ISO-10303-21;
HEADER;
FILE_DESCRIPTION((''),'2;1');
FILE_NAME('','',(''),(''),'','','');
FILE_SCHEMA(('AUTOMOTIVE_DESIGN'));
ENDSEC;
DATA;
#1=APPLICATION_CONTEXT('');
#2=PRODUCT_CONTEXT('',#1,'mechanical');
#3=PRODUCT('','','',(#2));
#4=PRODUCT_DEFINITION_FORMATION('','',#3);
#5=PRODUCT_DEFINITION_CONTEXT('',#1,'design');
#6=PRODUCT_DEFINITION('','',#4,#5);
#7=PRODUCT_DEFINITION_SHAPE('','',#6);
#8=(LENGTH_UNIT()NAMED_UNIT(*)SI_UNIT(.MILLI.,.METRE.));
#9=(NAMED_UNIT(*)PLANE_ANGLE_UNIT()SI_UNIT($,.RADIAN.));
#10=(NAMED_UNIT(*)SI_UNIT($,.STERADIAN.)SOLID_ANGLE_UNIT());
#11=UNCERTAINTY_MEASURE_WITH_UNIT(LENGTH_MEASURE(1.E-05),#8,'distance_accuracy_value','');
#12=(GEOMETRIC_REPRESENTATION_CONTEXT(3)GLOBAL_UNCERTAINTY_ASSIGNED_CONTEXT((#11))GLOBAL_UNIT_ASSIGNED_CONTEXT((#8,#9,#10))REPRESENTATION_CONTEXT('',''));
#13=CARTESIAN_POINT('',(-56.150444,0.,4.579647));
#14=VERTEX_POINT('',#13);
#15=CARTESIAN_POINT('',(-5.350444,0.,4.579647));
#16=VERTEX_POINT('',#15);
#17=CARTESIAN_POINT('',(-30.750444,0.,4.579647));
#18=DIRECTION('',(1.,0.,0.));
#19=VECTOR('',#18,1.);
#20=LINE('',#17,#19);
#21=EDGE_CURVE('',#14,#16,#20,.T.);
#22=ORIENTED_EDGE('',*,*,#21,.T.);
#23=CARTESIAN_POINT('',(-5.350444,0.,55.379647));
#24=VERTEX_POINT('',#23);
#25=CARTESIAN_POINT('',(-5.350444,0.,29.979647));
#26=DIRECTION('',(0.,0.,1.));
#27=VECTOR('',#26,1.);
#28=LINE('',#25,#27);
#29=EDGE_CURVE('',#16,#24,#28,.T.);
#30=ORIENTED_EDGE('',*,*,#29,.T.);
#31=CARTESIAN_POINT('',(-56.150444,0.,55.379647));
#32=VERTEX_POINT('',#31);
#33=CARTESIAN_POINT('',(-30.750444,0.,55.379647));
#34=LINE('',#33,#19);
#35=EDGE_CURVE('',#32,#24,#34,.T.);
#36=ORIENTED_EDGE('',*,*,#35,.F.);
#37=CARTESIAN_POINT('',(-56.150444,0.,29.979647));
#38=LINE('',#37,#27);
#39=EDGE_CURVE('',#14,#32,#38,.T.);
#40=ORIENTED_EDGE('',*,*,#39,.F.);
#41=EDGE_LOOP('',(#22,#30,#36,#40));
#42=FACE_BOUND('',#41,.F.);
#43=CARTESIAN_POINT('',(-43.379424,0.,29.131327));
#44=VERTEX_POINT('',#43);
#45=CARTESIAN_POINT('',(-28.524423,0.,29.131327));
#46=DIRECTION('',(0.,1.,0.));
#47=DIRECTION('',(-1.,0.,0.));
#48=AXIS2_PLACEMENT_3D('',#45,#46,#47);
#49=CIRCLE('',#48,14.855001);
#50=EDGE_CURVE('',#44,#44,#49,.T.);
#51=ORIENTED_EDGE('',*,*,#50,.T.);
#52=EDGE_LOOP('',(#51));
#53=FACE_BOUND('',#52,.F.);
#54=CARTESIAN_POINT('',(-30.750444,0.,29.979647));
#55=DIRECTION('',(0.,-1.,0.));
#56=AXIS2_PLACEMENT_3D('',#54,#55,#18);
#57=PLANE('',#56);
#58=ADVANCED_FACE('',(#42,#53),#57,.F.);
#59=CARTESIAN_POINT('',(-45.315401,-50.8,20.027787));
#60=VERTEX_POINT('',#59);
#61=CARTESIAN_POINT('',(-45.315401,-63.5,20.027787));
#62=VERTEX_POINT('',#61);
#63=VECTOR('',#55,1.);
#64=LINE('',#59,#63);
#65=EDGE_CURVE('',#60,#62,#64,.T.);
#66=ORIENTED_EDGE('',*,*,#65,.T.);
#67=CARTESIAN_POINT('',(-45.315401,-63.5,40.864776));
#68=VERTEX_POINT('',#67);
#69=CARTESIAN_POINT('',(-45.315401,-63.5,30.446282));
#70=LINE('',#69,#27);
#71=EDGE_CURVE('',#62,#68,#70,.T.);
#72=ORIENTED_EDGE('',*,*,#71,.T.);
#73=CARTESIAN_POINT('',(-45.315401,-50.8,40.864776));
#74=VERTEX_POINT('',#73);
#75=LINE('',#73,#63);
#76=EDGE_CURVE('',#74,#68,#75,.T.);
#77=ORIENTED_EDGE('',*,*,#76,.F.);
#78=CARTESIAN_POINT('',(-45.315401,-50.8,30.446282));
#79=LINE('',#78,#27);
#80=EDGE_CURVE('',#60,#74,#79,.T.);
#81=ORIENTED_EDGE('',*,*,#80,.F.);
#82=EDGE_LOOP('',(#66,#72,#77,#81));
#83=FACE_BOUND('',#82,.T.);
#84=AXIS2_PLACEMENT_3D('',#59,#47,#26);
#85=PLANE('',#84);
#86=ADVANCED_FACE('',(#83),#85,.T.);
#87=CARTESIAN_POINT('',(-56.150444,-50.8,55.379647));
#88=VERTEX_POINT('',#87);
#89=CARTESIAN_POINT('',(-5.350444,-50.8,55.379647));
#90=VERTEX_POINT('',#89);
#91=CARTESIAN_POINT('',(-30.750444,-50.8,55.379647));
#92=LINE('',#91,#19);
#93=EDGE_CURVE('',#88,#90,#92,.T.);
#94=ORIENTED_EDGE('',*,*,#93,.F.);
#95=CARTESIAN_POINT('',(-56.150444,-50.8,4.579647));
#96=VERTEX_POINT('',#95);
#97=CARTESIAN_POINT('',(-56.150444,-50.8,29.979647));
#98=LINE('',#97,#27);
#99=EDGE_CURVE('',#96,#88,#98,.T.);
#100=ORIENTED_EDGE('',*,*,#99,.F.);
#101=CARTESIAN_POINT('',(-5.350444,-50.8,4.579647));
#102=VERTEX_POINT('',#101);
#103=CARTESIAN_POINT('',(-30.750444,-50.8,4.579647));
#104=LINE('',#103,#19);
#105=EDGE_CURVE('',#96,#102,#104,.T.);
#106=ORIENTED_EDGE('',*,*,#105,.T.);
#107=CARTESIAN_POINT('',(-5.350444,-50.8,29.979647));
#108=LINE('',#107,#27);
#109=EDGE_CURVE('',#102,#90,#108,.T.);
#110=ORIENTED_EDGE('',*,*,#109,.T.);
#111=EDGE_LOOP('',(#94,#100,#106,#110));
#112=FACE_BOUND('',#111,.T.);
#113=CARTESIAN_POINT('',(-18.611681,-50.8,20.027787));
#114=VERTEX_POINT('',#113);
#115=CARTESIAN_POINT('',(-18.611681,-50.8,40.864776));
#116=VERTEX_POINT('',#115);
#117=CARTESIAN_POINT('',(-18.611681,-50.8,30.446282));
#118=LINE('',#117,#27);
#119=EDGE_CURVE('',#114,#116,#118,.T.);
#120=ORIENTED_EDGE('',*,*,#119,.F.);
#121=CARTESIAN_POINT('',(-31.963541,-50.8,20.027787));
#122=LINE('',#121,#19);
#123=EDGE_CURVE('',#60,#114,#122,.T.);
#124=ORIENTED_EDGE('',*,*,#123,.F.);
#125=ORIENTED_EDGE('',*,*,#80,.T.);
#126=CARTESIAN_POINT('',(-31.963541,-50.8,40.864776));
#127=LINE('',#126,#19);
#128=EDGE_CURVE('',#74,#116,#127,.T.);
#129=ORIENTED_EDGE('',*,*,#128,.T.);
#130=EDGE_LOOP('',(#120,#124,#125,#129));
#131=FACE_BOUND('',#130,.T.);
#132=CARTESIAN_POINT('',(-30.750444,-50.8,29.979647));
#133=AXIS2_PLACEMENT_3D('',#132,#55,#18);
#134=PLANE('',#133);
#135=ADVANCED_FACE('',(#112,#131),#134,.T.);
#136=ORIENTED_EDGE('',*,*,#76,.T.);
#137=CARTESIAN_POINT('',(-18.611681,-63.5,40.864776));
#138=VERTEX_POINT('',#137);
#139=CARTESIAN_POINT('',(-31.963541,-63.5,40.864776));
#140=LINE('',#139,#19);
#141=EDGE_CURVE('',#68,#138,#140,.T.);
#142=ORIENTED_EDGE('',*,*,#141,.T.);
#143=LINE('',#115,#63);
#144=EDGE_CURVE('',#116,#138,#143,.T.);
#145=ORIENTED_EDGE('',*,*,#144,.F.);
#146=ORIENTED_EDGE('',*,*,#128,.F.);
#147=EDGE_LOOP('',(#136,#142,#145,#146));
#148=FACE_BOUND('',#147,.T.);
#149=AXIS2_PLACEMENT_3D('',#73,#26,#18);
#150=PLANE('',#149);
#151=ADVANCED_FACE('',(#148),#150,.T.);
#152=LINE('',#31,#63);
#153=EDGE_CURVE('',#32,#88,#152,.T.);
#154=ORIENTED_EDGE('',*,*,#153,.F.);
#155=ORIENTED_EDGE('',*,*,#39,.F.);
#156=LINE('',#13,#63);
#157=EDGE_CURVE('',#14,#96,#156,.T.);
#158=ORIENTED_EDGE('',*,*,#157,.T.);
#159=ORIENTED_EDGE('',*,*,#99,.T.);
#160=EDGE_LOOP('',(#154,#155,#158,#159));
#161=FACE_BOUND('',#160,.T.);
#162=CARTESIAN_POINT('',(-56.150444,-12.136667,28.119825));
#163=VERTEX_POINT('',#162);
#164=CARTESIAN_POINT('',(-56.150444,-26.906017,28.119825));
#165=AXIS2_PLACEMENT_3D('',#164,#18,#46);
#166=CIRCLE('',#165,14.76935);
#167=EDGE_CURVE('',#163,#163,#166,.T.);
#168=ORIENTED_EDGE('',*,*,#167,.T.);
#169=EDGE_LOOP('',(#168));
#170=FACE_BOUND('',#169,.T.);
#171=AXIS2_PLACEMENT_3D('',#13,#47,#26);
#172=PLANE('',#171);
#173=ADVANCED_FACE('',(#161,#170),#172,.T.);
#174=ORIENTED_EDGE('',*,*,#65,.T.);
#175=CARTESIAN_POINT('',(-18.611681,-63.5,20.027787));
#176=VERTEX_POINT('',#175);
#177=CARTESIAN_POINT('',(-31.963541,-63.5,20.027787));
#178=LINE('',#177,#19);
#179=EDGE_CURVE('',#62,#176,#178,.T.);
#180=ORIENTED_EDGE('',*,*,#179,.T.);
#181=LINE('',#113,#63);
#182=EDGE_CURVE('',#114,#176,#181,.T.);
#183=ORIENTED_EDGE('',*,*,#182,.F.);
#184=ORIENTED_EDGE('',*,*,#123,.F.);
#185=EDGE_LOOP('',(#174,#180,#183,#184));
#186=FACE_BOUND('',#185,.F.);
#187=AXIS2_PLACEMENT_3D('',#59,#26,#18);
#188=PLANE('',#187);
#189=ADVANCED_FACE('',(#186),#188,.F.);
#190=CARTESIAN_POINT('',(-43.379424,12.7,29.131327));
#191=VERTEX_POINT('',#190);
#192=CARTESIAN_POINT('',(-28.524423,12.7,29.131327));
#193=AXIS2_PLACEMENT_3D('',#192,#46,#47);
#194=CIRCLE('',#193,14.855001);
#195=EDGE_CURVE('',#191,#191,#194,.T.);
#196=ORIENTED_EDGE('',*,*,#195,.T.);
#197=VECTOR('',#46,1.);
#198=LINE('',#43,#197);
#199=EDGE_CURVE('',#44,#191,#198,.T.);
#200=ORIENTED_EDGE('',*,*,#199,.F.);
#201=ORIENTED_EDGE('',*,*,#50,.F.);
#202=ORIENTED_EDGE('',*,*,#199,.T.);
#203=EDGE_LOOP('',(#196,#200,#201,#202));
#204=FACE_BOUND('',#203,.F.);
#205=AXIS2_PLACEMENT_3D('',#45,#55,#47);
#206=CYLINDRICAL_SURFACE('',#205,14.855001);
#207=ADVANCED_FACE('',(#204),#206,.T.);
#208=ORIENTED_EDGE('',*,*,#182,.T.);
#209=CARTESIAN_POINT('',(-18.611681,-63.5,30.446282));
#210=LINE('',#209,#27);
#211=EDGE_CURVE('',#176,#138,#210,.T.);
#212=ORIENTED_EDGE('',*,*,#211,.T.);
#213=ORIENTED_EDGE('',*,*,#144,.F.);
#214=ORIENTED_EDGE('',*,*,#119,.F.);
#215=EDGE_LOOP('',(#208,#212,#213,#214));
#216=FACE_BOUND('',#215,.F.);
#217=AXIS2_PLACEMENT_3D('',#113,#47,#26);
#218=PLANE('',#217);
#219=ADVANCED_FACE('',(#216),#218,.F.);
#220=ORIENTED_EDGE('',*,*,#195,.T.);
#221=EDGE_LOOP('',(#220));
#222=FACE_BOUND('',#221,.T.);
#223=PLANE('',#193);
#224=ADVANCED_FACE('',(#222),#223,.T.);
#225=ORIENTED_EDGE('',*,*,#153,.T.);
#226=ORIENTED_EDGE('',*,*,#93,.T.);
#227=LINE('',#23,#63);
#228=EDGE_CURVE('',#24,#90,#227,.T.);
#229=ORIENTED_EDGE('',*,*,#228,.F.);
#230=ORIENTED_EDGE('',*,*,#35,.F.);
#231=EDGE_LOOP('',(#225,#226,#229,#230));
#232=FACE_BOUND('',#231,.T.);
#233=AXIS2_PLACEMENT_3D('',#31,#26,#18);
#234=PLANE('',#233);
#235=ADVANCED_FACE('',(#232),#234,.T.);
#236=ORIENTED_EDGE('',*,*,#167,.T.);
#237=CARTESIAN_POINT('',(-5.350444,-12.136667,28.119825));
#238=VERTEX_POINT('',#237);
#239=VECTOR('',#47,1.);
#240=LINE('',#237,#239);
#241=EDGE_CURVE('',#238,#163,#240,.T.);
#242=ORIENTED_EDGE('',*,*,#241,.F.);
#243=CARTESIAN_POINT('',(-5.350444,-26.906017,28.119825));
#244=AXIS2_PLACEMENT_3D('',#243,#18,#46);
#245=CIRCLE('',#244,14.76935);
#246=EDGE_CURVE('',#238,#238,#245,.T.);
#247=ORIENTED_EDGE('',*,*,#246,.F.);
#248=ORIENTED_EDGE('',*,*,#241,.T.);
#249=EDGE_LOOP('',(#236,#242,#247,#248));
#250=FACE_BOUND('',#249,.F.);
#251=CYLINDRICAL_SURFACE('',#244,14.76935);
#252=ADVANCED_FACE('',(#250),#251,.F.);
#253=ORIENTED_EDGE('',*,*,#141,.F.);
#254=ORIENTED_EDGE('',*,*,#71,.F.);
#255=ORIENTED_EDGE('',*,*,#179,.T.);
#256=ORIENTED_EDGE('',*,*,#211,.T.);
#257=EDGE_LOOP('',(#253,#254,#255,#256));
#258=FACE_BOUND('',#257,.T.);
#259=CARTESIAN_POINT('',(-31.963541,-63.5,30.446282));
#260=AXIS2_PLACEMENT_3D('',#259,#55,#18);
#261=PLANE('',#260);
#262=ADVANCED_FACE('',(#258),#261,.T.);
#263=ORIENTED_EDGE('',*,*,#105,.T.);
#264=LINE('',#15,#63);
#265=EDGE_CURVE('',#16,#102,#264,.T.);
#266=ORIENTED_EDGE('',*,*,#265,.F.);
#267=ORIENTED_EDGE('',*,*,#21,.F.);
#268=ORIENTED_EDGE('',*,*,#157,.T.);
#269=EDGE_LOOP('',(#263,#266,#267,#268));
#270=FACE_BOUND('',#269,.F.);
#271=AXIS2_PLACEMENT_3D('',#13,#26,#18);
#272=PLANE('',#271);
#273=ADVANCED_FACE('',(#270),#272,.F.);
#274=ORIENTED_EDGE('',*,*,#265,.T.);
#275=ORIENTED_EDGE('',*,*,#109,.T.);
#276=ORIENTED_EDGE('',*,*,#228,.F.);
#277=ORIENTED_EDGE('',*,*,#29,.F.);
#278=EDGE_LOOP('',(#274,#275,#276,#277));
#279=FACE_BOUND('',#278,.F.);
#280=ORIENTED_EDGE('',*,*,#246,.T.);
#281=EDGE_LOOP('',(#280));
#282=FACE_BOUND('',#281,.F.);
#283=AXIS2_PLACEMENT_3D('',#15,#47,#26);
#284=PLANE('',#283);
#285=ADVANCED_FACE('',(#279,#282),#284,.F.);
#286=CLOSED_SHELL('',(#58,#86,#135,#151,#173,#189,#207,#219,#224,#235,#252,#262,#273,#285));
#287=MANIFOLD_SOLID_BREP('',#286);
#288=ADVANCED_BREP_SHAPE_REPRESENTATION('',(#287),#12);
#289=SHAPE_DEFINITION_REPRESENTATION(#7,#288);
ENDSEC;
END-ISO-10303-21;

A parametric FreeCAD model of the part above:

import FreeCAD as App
import Part
import Sketcher

V = App.Vector
Q = App.Units.Quantity

doc = App.newDocument("Part")
body = doc.addObject("PartDesign::Body", "Body")

# Sketch on XZ plane
sketch1 = doc.addObject("Sketcher::SketchObject", "Sketch")
body.addObject(sketch1)
sketch1.AttachmentSupport = (doc.XZ_Plane, [""])
sketch1.MapMode = "FlatFace"
sketch1.addGeometry([
    Part.LineSegment(V(-56, 55, 0), V(-56, 5, 0)),
    Part.LineSegment(V(-56, 5, 0), V(-5, 5, 0)),
    Part.LineSegment(V(-5, 5, 0), V(-5, 55, 0)),
    Part.LineSegment(V(-5, 55, 0), V(-56, 55, 0)),
], False)
sketch1.addConstraint([
    Sketcher.Constraint("Coincident", 0, 2, 1, 1),
    Sketcher.Constraint("Coincident", 1, 2, 2, 1),
    Sketcher.Constraint("Coincident", 2, 2, 3, 1),
    Sketcher.Constraint("Coincident", 3, 2, 0, 1),
    Sketcher.Constraint("Vertical", 0),
    Sketcher.Constraint("Horizontal", 1),
    Sketcher.Constraint("Vertical", 2),
    Sketcher.Constraint("Horizontal", 3),
    Sketcher.Constraint("Equal", 3, 0),
    Sketcher.Constraint("DistanceX", 1, 1, 1, 2, Q("2 in")),
    Sketcher.Constraint("DistanceX", 0, 2, -1, 1, Q("56.150444 mm")),
    Sketcher.Constraint("DistanceY", -1, 1, 0, 2, Q("4.579647 mm")),
])
pad1 = doc.addObject("PartDesign::Pad", "Pad")
body.addObject(pad1)
pad1.Profile = sketch1
pad1.Length = Q("2 in")

# Sketch on YZ plane
sketch2 = doc.addObject("Sketcher::SketchObject", "Sketch001")
body.addObject(sketch2)
sketch2.AttachmentSupport = (doc.YZ_Plane, [""])
sketch2.MapMode = "FlatFace"
sketch2.AttachmentOffset = App.Placement(V(0, 0, -5.350444), App.Rotation())
sketch2.addGeometry(Part.Circle(V(-27, 28, 0), V(0, 0, 1), 15), False)
sketch2.addConstraint([
    Sketcher.Constraint("Diameter", 0, Q("29.5387 mm")),
    Sketcher.Constraint("DistanceX", 0, 3, -1, 1, Q("26.906017 mm")),
    Sketcher.Constraint("DistanceY", -1, 1, 0, 3, Q("28.119825 mm")),
])
pocket1 = doc.addObject("PartDesign::Pocket", "Pocket")
body.addObject(pocket1)
pocket1.Profile = sketch2
pocket1.Length = Q("2 in")

# Sketch on XZ plane
sketch3 = doc.addObject("Sketcher::SketchObject", "Sketch002")
body.addObject(sketch3)
sketch3.AttachmentSupport = (doc.XZ_Plane, [""])
sketch3.MapMode = "FlatFace"
sketch3.addGeometry(Part.Circle(V(-29, 29, 0), V(0, 0, 1), 15), False)
sketch3.addConstraint([
    Sketcher.Constraint("Diameter", 0, Q("29.710002 mm")),
    Sketcher.Constraint("DistanceX", 0, 3, -1, 1, Q("28.524423 mm")),
    Sketcher.Constraint("DistanceY", -1, 1, 0, 3, Q("29.131327 mm")),
])
pad2 = doc.addObject("PartDesign::Pad", "Pad001")
body.addObject(pad2)
pad2.Profile = sketch3
pad2.Length = Q("0.5 in")
pad2.Reversed = True

# Sketch on XZ plane
sketch4 = doc.addObject("Sketcher::SketchObject", "Sketch003")
body.addObject(sketch4)
sketch4.AttachmentSupport = (doc.XZ_Plane, [""])
sketch4.MapMode = "FlatFace"
sketch4.AttachmentOffset = App.Placement(V(0, 0, 2 * 25.4), App.Rotation())
sketch4.addGeometry([
    Part.LineSegment(V(-45, 41, 0), V(-45, 20, 0)),
    Part.LineSegment(V(-45, 20, 0), V(-19, 20, 0)),
    Part.LineSegment(V(-19, 20, 0), V(-19, 41, 0)),
    Part.LineSegment(V(-19, 41, 0), V(-45, 41, 0)),
], False)
sketch4.addConstraint([
    Sketcher.Constraint("Coincident", 0, 2, 1, 1),
    Sketcher.Constraint("Coincident", 1, 2, 2, 1),
    Sketcher.Constraint("Coincident", 2, 2, 3, 1),
    Sketcher.Constraint("Coincident", 3, 2, 0, 1),
    Sketcher.Constraint("Vertical", 0),
    Sketcher.Constraint("Horizontal", 1),
    Sketcher.Constraint("Vertical", 2),
    Sketcher.Constraint("Horizontal", 3),
    Sketcher.Constraint("DistanceX", 1, 1, 1, 2, Q("26.703719 mm")),
    Sketcher.Constraint("DistanceY", 0, 2, 0, 1, Q("20.836989 mm")),
    Sketcher.Constraint("DistanceX", 0, 2, -1, 1, Q("45.315401 mm")),
    Sketcher.Constraint("DistanceY", -1, 1, 0, 2, Q("20.027787 mm")),
])
pad3 = doc.addObject("PartDesign::Pad", "Pad002")
body.addObject(pad3)
pad3.Profile = sketch4
pad3.Length = Q("0.5 in")

doc.recompute()
